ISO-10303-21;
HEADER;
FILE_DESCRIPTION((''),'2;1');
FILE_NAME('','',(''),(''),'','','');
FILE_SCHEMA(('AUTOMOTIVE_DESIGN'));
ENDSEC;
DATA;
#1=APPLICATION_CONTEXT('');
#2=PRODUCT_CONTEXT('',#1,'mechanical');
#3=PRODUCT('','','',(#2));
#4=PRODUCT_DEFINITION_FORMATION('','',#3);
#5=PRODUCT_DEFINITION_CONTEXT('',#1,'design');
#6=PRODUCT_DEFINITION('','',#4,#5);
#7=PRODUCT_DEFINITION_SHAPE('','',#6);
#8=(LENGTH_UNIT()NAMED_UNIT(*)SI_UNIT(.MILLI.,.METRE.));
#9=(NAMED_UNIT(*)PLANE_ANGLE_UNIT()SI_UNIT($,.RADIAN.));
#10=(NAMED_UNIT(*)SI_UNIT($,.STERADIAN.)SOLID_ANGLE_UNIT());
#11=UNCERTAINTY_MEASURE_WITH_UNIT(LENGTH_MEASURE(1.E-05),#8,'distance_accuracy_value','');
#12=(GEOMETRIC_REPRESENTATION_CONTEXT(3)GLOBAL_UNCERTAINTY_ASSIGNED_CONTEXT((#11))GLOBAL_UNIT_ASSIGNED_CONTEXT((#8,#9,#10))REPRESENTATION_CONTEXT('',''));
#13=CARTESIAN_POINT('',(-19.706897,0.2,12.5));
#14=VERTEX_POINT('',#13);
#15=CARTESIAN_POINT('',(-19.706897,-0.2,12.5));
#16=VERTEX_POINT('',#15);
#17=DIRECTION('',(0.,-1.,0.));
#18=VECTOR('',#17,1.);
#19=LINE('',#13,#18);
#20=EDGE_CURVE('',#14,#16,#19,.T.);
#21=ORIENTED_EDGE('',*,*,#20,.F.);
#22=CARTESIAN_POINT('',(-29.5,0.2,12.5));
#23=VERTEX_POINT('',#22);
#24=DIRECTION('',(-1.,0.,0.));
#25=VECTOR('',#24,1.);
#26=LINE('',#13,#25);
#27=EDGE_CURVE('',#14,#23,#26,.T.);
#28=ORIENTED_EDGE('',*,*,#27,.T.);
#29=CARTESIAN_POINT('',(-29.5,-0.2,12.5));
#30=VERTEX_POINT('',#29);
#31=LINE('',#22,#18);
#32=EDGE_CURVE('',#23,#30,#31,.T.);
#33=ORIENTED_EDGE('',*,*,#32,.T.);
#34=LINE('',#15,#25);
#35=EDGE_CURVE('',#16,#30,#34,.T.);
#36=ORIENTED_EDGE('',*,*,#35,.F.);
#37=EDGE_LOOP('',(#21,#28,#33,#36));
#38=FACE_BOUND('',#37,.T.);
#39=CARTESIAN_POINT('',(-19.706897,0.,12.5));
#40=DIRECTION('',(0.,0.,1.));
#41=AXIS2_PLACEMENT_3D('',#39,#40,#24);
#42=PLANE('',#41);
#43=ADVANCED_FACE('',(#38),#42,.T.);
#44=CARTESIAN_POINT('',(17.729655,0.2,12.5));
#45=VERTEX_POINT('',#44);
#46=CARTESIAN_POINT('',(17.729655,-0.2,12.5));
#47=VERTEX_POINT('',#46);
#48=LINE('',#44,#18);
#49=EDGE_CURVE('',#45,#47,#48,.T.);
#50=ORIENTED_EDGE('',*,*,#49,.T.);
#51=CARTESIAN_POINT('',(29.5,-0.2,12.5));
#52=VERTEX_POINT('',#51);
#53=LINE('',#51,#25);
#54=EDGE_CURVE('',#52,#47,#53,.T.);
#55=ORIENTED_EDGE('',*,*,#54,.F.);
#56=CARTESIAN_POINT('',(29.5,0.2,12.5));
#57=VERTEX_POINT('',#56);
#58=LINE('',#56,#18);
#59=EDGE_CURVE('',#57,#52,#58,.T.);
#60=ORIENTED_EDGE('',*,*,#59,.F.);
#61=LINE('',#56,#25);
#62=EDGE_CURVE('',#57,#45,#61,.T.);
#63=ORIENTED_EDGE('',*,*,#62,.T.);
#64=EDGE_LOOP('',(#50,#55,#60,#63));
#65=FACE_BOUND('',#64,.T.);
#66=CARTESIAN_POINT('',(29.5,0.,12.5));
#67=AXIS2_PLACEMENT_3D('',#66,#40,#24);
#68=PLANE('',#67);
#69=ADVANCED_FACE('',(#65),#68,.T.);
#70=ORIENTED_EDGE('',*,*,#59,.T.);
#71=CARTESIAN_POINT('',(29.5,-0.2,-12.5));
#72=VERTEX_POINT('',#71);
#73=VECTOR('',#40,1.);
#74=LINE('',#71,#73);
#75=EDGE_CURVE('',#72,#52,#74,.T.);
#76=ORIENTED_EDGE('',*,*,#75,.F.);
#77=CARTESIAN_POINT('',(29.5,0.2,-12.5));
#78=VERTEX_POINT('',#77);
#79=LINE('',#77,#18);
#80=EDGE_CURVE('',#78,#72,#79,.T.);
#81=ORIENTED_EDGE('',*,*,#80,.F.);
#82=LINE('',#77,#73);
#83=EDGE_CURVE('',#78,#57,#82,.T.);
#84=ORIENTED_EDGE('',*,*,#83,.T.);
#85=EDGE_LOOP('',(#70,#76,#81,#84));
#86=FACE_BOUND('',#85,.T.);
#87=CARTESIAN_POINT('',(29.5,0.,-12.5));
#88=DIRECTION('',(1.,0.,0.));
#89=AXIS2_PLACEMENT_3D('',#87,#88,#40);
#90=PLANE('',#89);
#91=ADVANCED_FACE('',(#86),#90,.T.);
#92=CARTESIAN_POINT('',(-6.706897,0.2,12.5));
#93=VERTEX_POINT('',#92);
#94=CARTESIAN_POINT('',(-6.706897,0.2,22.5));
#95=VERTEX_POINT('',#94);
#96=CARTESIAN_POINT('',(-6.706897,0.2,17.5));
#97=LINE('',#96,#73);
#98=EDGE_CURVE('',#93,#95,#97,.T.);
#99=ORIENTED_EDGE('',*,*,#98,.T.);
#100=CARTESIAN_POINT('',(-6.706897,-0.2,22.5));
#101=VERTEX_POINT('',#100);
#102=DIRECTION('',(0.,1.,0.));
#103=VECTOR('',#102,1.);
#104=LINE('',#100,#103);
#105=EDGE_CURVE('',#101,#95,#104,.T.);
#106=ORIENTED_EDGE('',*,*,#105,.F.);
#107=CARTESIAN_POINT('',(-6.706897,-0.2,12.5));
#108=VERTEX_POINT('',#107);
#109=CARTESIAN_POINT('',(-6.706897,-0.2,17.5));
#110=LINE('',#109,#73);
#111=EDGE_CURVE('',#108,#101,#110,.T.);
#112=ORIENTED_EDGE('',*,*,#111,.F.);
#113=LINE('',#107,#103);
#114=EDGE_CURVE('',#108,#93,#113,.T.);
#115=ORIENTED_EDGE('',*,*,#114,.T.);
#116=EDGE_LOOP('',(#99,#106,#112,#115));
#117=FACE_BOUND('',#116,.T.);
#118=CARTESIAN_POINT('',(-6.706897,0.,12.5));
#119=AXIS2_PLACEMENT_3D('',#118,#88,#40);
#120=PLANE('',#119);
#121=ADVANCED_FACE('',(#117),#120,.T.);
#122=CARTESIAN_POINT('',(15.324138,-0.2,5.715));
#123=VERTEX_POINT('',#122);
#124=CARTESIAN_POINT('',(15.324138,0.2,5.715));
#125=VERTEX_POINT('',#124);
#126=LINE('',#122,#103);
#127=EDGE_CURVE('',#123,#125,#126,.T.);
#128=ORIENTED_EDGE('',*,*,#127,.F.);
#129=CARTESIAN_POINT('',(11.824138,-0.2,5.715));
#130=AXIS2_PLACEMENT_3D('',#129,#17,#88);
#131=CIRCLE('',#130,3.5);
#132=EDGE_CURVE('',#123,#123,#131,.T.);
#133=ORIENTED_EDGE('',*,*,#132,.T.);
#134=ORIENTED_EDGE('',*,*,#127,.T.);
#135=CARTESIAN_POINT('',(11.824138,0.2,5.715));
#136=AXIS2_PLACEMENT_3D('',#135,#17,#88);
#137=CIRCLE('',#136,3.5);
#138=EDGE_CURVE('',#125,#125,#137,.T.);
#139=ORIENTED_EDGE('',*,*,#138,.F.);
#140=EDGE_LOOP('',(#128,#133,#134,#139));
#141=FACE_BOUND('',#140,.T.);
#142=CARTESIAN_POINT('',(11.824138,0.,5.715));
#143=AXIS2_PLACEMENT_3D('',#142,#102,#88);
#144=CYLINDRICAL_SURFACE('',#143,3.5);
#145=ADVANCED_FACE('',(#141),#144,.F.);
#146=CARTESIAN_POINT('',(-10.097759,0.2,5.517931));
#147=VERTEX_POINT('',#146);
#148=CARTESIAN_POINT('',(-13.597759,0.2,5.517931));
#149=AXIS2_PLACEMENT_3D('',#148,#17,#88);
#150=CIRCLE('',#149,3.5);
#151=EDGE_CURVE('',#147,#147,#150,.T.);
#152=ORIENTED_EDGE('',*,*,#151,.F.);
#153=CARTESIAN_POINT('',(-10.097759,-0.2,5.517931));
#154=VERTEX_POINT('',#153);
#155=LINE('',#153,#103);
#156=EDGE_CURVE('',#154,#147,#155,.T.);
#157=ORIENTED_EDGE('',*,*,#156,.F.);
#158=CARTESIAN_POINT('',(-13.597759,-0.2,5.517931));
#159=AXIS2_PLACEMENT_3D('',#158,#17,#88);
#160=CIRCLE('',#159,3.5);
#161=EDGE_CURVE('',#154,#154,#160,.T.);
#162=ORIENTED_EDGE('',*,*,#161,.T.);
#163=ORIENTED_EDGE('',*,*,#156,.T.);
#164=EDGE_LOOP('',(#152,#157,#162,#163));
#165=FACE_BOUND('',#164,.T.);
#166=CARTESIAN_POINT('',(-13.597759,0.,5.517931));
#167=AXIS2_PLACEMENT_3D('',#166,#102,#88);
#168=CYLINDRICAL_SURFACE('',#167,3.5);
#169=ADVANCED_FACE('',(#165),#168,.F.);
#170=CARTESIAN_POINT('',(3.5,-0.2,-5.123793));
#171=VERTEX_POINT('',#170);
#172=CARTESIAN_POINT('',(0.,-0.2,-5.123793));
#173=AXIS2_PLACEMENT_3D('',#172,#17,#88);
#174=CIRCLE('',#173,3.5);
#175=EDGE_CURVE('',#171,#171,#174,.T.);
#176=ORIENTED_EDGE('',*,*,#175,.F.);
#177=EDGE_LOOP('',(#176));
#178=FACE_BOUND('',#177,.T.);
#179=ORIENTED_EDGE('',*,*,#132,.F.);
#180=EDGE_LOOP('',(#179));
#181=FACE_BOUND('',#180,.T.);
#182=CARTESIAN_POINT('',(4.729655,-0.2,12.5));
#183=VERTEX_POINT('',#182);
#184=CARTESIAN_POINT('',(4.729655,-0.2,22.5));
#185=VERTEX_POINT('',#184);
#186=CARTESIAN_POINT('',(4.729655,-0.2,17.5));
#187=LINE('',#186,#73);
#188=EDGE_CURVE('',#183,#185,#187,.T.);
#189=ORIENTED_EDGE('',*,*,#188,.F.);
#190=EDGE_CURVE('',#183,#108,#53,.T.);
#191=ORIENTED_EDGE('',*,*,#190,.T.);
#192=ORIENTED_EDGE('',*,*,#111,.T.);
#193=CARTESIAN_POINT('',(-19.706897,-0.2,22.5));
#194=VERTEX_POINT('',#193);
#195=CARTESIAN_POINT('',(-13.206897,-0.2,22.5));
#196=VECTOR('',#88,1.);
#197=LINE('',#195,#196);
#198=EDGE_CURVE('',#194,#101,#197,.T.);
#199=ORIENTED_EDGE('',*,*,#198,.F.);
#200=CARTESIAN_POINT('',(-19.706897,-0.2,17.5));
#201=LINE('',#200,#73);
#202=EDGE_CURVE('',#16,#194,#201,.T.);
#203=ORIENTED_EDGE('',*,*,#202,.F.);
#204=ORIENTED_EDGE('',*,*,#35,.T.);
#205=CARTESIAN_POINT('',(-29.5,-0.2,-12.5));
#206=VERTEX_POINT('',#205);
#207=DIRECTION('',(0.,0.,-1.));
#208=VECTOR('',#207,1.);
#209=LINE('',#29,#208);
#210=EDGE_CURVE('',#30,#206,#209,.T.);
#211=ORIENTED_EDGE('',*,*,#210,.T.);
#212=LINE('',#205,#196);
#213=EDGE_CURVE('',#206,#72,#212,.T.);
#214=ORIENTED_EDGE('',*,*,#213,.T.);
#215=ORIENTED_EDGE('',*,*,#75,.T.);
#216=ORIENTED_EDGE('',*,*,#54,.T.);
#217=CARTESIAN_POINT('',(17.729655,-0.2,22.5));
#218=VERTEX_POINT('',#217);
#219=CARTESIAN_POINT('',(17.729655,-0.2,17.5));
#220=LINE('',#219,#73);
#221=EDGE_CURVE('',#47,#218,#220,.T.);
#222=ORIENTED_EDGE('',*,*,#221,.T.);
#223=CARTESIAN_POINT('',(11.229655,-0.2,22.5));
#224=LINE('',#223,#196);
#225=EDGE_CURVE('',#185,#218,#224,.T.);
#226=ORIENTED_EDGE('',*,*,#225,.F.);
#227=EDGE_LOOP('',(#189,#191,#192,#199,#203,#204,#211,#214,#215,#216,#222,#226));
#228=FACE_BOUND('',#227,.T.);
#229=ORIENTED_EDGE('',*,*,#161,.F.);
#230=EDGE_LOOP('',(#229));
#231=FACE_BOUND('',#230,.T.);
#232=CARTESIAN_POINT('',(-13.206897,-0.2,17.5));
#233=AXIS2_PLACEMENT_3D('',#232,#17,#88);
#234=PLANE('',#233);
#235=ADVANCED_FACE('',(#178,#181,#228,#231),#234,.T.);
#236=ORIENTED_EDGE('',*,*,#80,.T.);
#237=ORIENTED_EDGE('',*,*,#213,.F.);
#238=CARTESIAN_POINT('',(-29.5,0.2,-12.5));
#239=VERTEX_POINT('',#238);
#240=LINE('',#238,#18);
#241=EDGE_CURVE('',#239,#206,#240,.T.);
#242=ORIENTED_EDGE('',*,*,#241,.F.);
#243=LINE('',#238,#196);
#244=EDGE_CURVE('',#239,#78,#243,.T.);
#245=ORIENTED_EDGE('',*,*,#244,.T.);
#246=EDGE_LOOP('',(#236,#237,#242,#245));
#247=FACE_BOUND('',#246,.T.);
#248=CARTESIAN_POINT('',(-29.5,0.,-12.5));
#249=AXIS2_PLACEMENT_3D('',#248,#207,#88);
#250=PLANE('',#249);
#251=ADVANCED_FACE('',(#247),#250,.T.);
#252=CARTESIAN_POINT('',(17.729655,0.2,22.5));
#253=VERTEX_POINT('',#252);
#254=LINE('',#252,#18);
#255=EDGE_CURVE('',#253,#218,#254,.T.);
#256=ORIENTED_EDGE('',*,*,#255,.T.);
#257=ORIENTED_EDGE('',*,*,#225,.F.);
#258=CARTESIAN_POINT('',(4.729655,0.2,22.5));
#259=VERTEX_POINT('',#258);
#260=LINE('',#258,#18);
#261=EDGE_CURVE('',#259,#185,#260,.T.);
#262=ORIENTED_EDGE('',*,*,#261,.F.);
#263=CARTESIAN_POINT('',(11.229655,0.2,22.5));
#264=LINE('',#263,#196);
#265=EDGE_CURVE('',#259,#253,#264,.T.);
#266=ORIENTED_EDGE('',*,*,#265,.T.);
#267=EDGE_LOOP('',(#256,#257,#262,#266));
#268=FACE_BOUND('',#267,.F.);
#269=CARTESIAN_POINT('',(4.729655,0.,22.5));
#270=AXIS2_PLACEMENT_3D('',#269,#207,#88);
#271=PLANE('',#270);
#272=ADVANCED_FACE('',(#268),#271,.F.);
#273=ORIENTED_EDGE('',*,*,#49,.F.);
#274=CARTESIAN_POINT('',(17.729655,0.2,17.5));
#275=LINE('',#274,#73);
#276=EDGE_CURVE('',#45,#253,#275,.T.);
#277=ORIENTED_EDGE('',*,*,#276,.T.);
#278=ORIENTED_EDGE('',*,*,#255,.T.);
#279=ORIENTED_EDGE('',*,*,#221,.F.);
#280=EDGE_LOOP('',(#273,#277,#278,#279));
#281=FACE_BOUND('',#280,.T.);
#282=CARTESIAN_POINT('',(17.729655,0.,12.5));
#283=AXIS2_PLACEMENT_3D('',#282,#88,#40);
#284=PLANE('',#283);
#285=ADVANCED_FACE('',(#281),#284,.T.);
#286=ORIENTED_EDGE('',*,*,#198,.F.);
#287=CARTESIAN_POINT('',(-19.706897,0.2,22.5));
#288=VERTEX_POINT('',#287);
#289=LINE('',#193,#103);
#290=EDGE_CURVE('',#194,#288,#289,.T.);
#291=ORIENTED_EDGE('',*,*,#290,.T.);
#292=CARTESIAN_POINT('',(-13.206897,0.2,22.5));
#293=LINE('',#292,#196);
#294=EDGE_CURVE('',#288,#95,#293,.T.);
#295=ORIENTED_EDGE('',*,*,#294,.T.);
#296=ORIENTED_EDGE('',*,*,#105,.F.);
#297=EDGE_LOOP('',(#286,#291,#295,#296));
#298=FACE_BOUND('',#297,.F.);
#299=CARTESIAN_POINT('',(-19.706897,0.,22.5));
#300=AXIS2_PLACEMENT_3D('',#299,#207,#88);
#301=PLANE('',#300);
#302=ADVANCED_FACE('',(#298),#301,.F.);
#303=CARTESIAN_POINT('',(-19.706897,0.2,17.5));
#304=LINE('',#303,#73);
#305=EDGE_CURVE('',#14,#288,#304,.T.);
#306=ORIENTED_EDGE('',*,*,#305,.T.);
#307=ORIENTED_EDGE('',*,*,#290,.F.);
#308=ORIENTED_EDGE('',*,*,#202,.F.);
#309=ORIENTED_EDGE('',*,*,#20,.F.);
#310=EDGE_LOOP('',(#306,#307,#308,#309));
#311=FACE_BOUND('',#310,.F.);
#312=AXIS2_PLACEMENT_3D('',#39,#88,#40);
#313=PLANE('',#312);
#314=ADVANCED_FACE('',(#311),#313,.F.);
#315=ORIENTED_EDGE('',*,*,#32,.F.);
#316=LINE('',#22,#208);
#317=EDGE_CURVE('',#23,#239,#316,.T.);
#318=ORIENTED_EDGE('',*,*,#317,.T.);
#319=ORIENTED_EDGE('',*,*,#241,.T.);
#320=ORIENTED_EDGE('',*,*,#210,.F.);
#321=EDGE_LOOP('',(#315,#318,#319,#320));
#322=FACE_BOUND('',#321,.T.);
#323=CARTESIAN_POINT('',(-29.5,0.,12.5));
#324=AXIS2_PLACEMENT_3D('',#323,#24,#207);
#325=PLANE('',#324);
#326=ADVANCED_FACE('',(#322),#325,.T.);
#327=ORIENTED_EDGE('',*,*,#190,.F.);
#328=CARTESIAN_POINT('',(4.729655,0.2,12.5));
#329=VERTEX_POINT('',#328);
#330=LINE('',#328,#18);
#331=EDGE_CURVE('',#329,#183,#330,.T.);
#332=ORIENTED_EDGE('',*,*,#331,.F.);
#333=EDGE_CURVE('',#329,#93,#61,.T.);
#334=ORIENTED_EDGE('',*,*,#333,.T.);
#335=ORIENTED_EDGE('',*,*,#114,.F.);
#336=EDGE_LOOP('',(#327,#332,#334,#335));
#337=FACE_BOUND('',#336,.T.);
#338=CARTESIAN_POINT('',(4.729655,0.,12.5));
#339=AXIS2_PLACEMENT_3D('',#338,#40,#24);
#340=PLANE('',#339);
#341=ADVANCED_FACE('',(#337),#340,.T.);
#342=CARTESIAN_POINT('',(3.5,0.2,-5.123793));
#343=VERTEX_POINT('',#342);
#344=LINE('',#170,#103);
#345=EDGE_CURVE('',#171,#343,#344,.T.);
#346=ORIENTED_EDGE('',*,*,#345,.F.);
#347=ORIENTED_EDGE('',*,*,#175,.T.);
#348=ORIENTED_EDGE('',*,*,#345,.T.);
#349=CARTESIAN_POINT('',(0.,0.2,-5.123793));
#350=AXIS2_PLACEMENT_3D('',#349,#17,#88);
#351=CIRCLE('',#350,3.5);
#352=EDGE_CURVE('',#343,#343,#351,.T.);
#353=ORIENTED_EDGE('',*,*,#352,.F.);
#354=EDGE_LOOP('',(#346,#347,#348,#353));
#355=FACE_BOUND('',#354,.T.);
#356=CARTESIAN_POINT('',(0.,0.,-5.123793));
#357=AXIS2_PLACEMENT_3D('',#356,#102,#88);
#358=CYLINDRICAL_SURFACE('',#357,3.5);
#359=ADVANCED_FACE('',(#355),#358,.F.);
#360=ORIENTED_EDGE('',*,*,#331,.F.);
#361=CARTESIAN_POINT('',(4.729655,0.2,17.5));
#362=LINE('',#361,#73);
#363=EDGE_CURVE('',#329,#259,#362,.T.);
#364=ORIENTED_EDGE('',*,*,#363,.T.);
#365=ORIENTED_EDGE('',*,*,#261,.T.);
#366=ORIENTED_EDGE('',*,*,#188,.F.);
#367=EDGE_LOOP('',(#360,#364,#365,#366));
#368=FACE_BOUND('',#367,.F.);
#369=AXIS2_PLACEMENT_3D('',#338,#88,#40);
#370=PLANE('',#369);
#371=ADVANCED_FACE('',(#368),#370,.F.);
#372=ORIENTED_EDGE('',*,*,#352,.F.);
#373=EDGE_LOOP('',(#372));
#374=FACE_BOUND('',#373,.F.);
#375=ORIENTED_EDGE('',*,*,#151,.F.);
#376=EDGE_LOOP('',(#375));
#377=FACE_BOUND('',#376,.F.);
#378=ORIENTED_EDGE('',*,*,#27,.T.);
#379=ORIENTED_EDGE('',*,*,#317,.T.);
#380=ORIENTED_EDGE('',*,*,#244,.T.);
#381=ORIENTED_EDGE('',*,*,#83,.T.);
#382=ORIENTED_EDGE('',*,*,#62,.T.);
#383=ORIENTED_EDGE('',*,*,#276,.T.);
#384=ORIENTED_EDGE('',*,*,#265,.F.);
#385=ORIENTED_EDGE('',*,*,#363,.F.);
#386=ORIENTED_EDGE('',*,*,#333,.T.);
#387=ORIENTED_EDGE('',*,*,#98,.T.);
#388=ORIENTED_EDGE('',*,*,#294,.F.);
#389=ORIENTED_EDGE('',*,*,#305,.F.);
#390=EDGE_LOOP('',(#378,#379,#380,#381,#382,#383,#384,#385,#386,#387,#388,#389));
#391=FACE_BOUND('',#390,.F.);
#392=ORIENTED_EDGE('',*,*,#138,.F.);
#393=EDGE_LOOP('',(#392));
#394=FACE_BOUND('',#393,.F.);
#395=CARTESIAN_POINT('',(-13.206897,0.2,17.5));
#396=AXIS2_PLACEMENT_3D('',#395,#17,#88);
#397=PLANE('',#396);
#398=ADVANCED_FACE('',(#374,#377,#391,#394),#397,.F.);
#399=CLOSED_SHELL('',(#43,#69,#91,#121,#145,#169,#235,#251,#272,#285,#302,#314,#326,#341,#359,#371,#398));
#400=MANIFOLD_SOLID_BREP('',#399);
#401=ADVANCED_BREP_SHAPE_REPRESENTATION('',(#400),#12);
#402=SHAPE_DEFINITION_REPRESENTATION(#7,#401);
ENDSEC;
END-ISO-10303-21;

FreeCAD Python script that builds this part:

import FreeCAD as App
import Part
import Sketcher
Q = App.Units.Quantity


def add_polygon(sketch, points):
    """Adds a closed chain of lines whose ends are joined by coincident constraints."""
    first, n = sketch.GeometryCount, len(points)
    for a, b in zip(points, points[1:] + points[:1]):
        sketch.addGeometry(Part.LineSegment(App.Vector(*a, 0), App.Vector(*b, 0)), False)
    for i in range(n):
        sketch.addConstraint(Sketcher.Constraint("Coincident", first + i, 2, first + (i + 1) % n, 1))

doc = App.newDocument("Part")
body = doc.addObject("PartDesign::Body", "Body")

# Sketch on XZ plane
sketch1 = doc.addObject("Sketcher::SketchObject", "Sketch")
body.addObject(sketch1)
sketch1.AttachmentSupport = (doc.XZ_Plane, [""])
sketch1.MapMode = "FlatFace"
add_polygon(sketch1, [(-19.7, 22.5), (-19.7, 12.5), (-29.5, 12.5), (-29.5, -12.5), (29.5, -12.5), (29.5, 12.5), (17.7, 12.5), (17.7, 22.5), (4.7, 22.5), (4.7, 12.5), (-6.7, 12.5), (-6.7, 22.5)])  # lines 0-11
sketch1.addGeometry(Part.Circle(App.Vector(0, -5.1, 0), App.Vector(0, 0, 1), 3.5), False)  # 12
sketch1.addGeometry(Part.Circle(App.Vector(-13.6, 5.5, 0), App.Vector(0, 0, 1), 3.5), False)  # 13
sketch1.addGeometry(Part.Circle(App.Vector(11.8, 5.7, 0), App.Vector(0, 0, 1), 3.5), False)  # 14
sketch1.addConstraint(Sketcher.Constraint("Vertical", 0))
sketch1.addConstraint(Sketcher.Constraint("Horizontal", 1))
sketch1.addConstraint(Sketcher.Constraint("Vertical", 2))
sketch1.addConstraint(Sketcher.Constraint("Horizontal", 3))
sketch1.addConstraint(Sketcher.Constraint("Vertical", 4))
sketch1.addConstraint(Sketcher.Constraint("Horizontal", 5))
sketch1.addConstraint(Sketcher.Constraint("Vertical", 6))
sketch1.addConstraint(Sketcher.Constraint("Horizontal", 7))
sketch1.addConstraint(Sketcher.Constraint("Vertical", 8))
sketch1.addConstraint(Sketcher.Constraint("Horizontal", 9))
sketch1.addConstraint(Sketcher.Constraint("Vertical", 10))
sketch1.addConstraint(Sketcher.Constraint("Horizontal", 11))
sketch1.addConstraint(Sketcher.Constraint("Equal", 12, 13))
sketch1.addConstraint(Sketcher.Constraint("Equal", 13, 14))
sketch1.addConstraint(Sketcher.Constraint("Symmetric", 1, 2, 3, 2, -1, 1))
sketch1.addConstraint(Sketcher.Constraint("PointOnObject", 12, 3, -2))
sketch1.addConstraint(Sketcher.Constraint("Horizontal", 1, 2, 4, 2))
sketch1.addConstraint(Sketcher.Constraint("Horizontal", 5, 2, 8, 2))
sketch1.addConstraint(Sketcher.Constraint("Horizontal", 7, 2, 10, 2))
sketch1.addConstraint(Sketcher.Constraint("Equal", 7, 11))
sketch1.addConstraint(Sketcher.Constraint("Diameter", 12, Q("7 mm")))
sketch1.addConstraint(Sketcher.Constraint("DistanceX", 3, 1, 3, 2, Q("59 mm")))
sketch1.addConstraint(Sketcher.Constraint("DistanceX", 7, 2, 7, 1, Q("13 mm")))
sketch1.addConstraint(Sketcher.Constraint("DistanceY", 0, 2, 0, 1, Q("10 mm")))
sketch1.addConstraint(Sketcher.Constraint("DistanceY", 2, 2, 2, 1, Q("25 mm")))
sketch1.addConstraint(Sketcher.Constraint("DistanceY", -1, 1, 14, 3, Q("5.715 mm")))
sketch1.addConstraint(Sketcher.Constraint("DistanceX", 9, 2, 9, 1, Q("11.436552 mm")))
sketch1.addConstraint(Sketcher.Constraint("DistanceX", 1, 2, 1, 1, Q("9.793103 mm")))
sketch1.addConstraint(Sketcher.Constraint("DistanceX", 13, 3, -1, 1, Q("13.597759 mm")))
sketch1.addConstraint(Sketcher.Constraint("DistanceY", -1, 1, 13, 3, Q("5.517931 mm")))
sketch1.addConstraint(Sketcher.Constraint("DistanceY", 12, 3, -1, 1, Q("5.123793 mm")))
sketch1.addConstraint(Sketcher.Constraint("DistanceX", -1, 1, 14, 3, Q("11.824138 mm")))
pad1 = doc.addObject("PartDesign::Pad", "Pad")
body.addObject(pad1)
pad1.Profile = sketch1
pad1.Length = 0.4
pad1.Midplane = True

doc.recompute()
